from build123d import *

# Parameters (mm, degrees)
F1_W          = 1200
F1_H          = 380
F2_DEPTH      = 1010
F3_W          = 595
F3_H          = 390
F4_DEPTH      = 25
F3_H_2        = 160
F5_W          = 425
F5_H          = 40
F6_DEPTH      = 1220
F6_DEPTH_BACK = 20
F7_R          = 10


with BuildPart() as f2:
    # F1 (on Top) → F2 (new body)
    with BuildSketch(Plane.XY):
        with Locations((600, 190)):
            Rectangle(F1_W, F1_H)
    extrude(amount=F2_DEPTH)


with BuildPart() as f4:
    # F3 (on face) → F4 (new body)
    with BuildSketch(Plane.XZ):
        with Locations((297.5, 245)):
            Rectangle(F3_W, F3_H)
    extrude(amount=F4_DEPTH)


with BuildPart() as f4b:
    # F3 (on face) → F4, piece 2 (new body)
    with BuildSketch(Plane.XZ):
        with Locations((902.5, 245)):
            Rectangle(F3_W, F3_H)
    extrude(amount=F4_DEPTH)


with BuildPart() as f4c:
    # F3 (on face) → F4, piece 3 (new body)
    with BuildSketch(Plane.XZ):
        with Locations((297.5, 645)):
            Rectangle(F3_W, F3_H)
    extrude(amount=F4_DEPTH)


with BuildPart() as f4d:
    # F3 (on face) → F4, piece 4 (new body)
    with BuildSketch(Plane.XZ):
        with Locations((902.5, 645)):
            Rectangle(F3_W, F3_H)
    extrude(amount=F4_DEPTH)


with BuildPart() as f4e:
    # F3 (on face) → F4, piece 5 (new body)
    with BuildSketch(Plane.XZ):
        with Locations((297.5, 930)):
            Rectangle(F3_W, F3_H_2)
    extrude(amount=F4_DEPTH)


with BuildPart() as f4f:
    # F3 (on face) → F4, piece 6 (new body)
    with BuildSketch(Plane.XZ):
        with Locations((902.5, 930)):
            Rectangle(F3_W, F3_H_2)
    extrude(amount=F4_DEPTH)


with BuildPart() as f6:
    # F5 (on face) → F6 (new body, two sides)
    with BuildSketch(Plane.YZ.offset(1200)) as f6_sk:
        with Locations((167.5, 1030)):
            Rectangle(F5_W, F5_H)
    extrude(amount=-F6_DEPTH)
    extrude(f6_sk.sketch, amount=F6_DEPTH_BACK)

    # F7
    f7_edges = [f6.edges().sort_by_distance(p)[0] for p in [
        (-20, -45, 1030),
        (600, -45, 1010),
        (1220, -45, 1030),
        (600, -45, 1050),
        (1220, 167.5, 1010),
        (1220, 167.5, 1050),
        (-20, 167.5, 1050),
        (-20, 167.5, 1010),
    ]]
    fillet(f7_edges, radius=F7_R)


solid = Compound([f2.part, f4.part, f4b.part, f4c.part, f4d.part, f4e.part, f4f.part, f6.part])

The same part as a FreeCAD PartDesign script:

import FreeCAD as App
import Part
import Sketcher

V = App.Vector
Q = App.Units.Quantity


def edges_at(feature, points):
    """Names of the edges that pass closest to the given points."""
    edges = feature.Shape.Edges
    near = lambda p: min(range(len(edges)), key=lambda i: edges[i].distToShape(Part.Vertex(*p))[0])
    return sorted({f"Edge{near(p) + 1}" for p in points})


def add_polygon(sketch, points):
    """Adds a closed chain of lines whose ends are joined by coincident constraints."""
    first, n = sketch.GeometryCount, len(points)
    for a, b in zip(points, points[1:] + points[:1]):
        sketch.addGeometry(Part.LineSegment(App.Vector(*a, 0), App.Vector(*b, 0)), False)
    for i in range(n):
        sketch.addConstraint(Sketcher.Constraint("Coincident", first + i, 2, first + (i + 1) % n, 1))

doc = App.newDocument("Part")
body = doc.addObject("PartDesign::Body", "Body")

# Sketch on XY plane
sketch1 = body.newObject("Sketcher::SketchObject", "Sketch")
sketch1.AttachmentSupport = (doc.getObject("XY_Plane"), [""])
sketch1.MapMode = "FlatFace"
add_polygon(sketch1, [(0, 380), (0, 0), (1200, 0), (1200, 380)])  # lines 0-3
sketch1.addConstraint([
    Sketcher.Constraint("Vertical", 0),
    Sketcher.Constraint("Horizontal", 1),
    Sketcher.Constraint("Vertical", 2),
    Sketcher.Constraint("Horizontal", 3),
    Sketcher.Constraint("Coincident", 0, 2, -1, 1),
    Sketcher.Constraint("DistanceX", 1, 1, 1, 2, Q("1200 mm")),
    Sketcher.Constraint("DistanceY", 0, 2, 0, 1, Q("380 mm")),
])
pad1 = body.newObject("PartDesign::Pad", "Pad")
pad1.Profile = sketch1
pad1.Length = 1010
body2 = doc.addObject("PartDesign::Body", "Body001")

# Sketch on XZ plane
sketch2 = body2.newObject("Sketcher::SketchObject", "Sketch001")
sketch2.AttachmentSupport = (doc.getObject("XZ_Plane001"), [""])
sketch2.MapMode = "FlatFace"
add_polygon(sketch2, [(0, 440), (0, 50), (595, 50), (595, 440)])  # lines 0-3
sketch2.addConstraint([
    Sketcher.Constraint("Vertical", 0),
    Sketcher.Constraint("Horizontal", 1),
    Sketcher.Constraint("Vertical", 2),
    Sketcher.Constraint("Horizontal", 3),
    Sketcher.Constraint("PointOnObject", 0, 2, -2),
    Sketcher.Constraint("DistanceX", 1, 1, 1, 2, Q("595 mm")),
    Sketcher.Constraint("DistanceY", 0, 2, 0, 1, Q("390 mm")),
    Sketcher.Constraint("DistanceY", -1, 1, 0, 2, Q("50 mm")),
])
pad2 = body2.newObject("PartDesign::Pad", "Pad001")
pad2.Profile = sketch2
pad2.Length = 25
body3 = doc.addObject("PartDesign::Body", "Body002")

# Sketch on XZ plane
sketch3 = body3.newObject("Sketcher::SketchObject", "Sketch002")
sketch3.AttachmentSupport = (doc.getObject("XZ_Plane002"), [""])
sketch3.MapMode = "FlatFace"
add_polygon(sketch3, [(605, 440), (605, 50), (1200, 50), (1200, 440)])  # lines 0-3
sketch3.addConstraint([
    Sketcher.Constraint("Vertical", 0),
    Sketcher.Constraint("Horizontal", 1),
    Sketcher.Constraint("Vertical", 2),
    Sketcher.Constraint("Horizontal", 3),
    Sketcher.Constraint("DistanceX", 1, 1, 1, 2, Q("595 mm")),
    Sketcher.Constraint("DistanceY", 0, 2, 0, 1, Q("390 mm")),
    Sketcher.Constraint("DistanceX", -1, 1, 0, 2, Q("605 mm")),
    Sketcher.Constraint("DistanceY", -1, 1, 0, 2, Q("50 mm")),
])
pad3 = body3.newObject("PartDesign::Pad", "Pad002")
pad3.Profile = sketch3
pad3.Length = 25
body4 = doc.addObject("PartDesign::Body", "Body003")

# Sketch on XZ plane
sketch4 = body4.newObject("Sketcher::SketchObject", "Sketch003")
sketch4.AttachmentSupport = (doc.getObject("XZ_Plane003"), [""])
sketch4.MapMode = "FlatFace"
add_polygon(sketch4, [(0, 840), (0, 450), (595, 450), (595, 840)])  # lines 0-3
sketch4.addConstraint([
    Sketcher.Constraint("Vertical", 0),
    Sketcher.Constraint("Horizontal", 1),
    Sketcher.Constraint("Vertical", 2),
    Sketcher.Constraint("Horizontal", 3),
    Sketcher.Constraint("PointOnObject", 0, 2, -2),
    Sketcher.Constraint("DistanceX", 1, 1, 1, 2, Q("595 mm")),
    Sketcher.Constraint("DistanceY", 0, 2, 0, 1, Q("390 mm")),
    Sketcher.Constraint("DistanceY", -1, 1, 0, 2, Q("450 mm")),
])
pad4 = body4.newObject("PartDesign::Pad", "Pad003")
pad4.Profile = sketch4
pad4.Length = 25
body5 = doc.addObject("PartDesign::Body", "Body004")

# Sketch on XZ plane
sketch5 = body5.newObject("Sketcher::SketchObject", "Sketch004")
sketch5.AttachmentSupport = (doc.getObject("XZ_Plane004"), [""])
sketch5.MapMode = "FlatFace"
add_polygon(sketch5, [(605, 840), (605, 450), (1200, 450), (1200, 840)])  # lines 0-3
sketch5.addConstraint([
    Sketcher.Constraint("Vertical", 0),
    Sketcher.Constraint("Horizontal", 1),
    Sketcher.Constraint("Vertical", 2),
    Sketcher.Constraint("Horizontal", 3),
    Sketcher.Constraint("DistanceX", 1, 1, 1, 2, Q("595 mm")),
    Sketcher.Constraint("DistanceY", 0, 2, 0, 1, Q("390 mm")),
    Sketcher.Constraint("DistanceX", -1, 1, 0, 2, Q("605 mm")),
    Sketcher.Constraint("DistanceY", -1, 1, 0, 2, Q("450 mm")),
])
pad5 = body5.newObject("PartDesign::Pad", "Pad004")
pad5.Profile = sketch5
pad5.Length = 25
body6 = doc.addObject("PartDesign::Body", "Body005")

# Sketch on XZ plane
sketch6 = body6.newObject("Sketcher::SketchObject", "Sketch005")
sketch6.AttachmentSupport = (doc.getObject("XZ_Plane005"), [""])
sketch6.MapMode = "FlatFace"
add_polygon(sketch6, [(0, 1010), (0, 850), (595, 850), (595, 1010)])  # lines 0-3
sketch6.addConstraint([
    Sketcher.Constraint("Vertical", 0),
    Sketcher.Constraint("Horizontal", 1),
    Sketcher.Constraint("Vertical", 2),
    Sketcher.Constraint("Horizontal", 3),
    Sketcher.Constraint("PointOnObject", 0, 2, -2),
    Sketcher.Constraint("DistanceX", 1, 1, 1, 2, Q("595 mm")),
    Sketcher.Constraint("DistanceY", 0, 2, 0, 1, Q("160 mm")),
    Sketcher.Constraint("DistanceY", -1, 1, 0, 2, Q("850 mm")),
])
pad6 = body6.newObject("PartDesign::Pad", "Pad005")
pad6.Profile = sketch6
pad6.Length = 25
body7 = doc.addObject("PartDesign::Body", "Body006")

# Sketch on XZ plane
sketch7 = body7.newObject("Sketcher::SketchObject", "Sketch006")
sketch7.AttachmentSupport = (doc.getObject("XZ_Plane006"), [""])
sketch7.MapMode = "FlatFace"
add_polygon(sketch7, [(605, 1010), (605, 850), (1200, 850), (1200, 1010)])  # lines 0-3
sketch7.addConstraint([
    Sketcher.Constraint("Vertical", 0),
    Sketcher.Constraint("Horizontal", 1),
    Sketcher.Constraint("Vertical", 2),
    Sketcher.Constraint("Horizontal", 3),
    Sketcher.Constraint("DistanceX", 1, 1, 1, 2, Q("595 mm")),
    Sketcher.Constraint("DistanceY", 0, 2, 0, 1, Q("160 mm")),
    Sketcher.Constraint("DistanceX", -1, 1, 0, 2, Q("605 mm")),
    Sketcher.Constraint("DistanceY", -1, 1, 0, 2, Q("850 mm")),
])
pad7 = body7.newObject("PartDesign::Pad", "Pad006")
pad7.Profile = sketch7
pad7.Length = 25
body8 = doc.addObject("PartDesign::Body", "Body007")

# Sketch on YZ plane
sketch8 = body8.newObject("Sketcher::SketchObject", "Sketch007")
sketch8.AttachmentSupport = (doc.getObject("YZ_Plane007"), [""])
sketch8.MapMode = "FlatFace"
sketch8.AttachmentOffset = App.Placement(V(0, 0, 1200), App.Rotation())
add_polygon(sketch8, [(-45, 1050), (-45, 1010), (380, 1010), (380, 1050)])  # lines 0-3
sketch8.addConstraint([
    Sketcher.Constraint("Vertical", 0),
    Sketcher.Constraint("Horizontal", 1),
    Sketcher.Constraint("Vertical", 2),
    Sketcher.Constraint("Horizontal", 3),
    Sketcher.Constraint("DistanceX", 1, 1, 1, 2, Q("425 mm")),
    Sketcher.Constraint("DistanceY", 0, 2, 0, 1, Q("40 mm")),
    Sketcher.Constraint("DistanceX", 0, 2, -1, 1, Q("45 mm")),
    Sketcher.Constraint("DistanceY", -1, 1, 0, 2, Q("1010 mm")),
])
pad8 = body8.newObject("PartDesign::Pad", "Pad007")
pad8.Profile = sketch8
pad8.Type = "TwoLengths"
pad8.Length = 1220
pad8.Length2 = 20
pad8.Reversed = True
doc.recompute()

fillet = body8.newObject("PartDesign::Fillet", "Fillet")
fillet.Base = (pad8, edges_at(pad8, [
    (-20, -45, 1030),
    (600, -45, 1010),
    (1220, -45, 1030),
    (600, -45, 1050),
    (1220, 167.5, 1010),
    (1220, 167.5, 1050),
    (-20, 167.5, 1050),
    (-20, 167.5, 1010),
]))
fillet.Radius = 10

doc.recompute()
